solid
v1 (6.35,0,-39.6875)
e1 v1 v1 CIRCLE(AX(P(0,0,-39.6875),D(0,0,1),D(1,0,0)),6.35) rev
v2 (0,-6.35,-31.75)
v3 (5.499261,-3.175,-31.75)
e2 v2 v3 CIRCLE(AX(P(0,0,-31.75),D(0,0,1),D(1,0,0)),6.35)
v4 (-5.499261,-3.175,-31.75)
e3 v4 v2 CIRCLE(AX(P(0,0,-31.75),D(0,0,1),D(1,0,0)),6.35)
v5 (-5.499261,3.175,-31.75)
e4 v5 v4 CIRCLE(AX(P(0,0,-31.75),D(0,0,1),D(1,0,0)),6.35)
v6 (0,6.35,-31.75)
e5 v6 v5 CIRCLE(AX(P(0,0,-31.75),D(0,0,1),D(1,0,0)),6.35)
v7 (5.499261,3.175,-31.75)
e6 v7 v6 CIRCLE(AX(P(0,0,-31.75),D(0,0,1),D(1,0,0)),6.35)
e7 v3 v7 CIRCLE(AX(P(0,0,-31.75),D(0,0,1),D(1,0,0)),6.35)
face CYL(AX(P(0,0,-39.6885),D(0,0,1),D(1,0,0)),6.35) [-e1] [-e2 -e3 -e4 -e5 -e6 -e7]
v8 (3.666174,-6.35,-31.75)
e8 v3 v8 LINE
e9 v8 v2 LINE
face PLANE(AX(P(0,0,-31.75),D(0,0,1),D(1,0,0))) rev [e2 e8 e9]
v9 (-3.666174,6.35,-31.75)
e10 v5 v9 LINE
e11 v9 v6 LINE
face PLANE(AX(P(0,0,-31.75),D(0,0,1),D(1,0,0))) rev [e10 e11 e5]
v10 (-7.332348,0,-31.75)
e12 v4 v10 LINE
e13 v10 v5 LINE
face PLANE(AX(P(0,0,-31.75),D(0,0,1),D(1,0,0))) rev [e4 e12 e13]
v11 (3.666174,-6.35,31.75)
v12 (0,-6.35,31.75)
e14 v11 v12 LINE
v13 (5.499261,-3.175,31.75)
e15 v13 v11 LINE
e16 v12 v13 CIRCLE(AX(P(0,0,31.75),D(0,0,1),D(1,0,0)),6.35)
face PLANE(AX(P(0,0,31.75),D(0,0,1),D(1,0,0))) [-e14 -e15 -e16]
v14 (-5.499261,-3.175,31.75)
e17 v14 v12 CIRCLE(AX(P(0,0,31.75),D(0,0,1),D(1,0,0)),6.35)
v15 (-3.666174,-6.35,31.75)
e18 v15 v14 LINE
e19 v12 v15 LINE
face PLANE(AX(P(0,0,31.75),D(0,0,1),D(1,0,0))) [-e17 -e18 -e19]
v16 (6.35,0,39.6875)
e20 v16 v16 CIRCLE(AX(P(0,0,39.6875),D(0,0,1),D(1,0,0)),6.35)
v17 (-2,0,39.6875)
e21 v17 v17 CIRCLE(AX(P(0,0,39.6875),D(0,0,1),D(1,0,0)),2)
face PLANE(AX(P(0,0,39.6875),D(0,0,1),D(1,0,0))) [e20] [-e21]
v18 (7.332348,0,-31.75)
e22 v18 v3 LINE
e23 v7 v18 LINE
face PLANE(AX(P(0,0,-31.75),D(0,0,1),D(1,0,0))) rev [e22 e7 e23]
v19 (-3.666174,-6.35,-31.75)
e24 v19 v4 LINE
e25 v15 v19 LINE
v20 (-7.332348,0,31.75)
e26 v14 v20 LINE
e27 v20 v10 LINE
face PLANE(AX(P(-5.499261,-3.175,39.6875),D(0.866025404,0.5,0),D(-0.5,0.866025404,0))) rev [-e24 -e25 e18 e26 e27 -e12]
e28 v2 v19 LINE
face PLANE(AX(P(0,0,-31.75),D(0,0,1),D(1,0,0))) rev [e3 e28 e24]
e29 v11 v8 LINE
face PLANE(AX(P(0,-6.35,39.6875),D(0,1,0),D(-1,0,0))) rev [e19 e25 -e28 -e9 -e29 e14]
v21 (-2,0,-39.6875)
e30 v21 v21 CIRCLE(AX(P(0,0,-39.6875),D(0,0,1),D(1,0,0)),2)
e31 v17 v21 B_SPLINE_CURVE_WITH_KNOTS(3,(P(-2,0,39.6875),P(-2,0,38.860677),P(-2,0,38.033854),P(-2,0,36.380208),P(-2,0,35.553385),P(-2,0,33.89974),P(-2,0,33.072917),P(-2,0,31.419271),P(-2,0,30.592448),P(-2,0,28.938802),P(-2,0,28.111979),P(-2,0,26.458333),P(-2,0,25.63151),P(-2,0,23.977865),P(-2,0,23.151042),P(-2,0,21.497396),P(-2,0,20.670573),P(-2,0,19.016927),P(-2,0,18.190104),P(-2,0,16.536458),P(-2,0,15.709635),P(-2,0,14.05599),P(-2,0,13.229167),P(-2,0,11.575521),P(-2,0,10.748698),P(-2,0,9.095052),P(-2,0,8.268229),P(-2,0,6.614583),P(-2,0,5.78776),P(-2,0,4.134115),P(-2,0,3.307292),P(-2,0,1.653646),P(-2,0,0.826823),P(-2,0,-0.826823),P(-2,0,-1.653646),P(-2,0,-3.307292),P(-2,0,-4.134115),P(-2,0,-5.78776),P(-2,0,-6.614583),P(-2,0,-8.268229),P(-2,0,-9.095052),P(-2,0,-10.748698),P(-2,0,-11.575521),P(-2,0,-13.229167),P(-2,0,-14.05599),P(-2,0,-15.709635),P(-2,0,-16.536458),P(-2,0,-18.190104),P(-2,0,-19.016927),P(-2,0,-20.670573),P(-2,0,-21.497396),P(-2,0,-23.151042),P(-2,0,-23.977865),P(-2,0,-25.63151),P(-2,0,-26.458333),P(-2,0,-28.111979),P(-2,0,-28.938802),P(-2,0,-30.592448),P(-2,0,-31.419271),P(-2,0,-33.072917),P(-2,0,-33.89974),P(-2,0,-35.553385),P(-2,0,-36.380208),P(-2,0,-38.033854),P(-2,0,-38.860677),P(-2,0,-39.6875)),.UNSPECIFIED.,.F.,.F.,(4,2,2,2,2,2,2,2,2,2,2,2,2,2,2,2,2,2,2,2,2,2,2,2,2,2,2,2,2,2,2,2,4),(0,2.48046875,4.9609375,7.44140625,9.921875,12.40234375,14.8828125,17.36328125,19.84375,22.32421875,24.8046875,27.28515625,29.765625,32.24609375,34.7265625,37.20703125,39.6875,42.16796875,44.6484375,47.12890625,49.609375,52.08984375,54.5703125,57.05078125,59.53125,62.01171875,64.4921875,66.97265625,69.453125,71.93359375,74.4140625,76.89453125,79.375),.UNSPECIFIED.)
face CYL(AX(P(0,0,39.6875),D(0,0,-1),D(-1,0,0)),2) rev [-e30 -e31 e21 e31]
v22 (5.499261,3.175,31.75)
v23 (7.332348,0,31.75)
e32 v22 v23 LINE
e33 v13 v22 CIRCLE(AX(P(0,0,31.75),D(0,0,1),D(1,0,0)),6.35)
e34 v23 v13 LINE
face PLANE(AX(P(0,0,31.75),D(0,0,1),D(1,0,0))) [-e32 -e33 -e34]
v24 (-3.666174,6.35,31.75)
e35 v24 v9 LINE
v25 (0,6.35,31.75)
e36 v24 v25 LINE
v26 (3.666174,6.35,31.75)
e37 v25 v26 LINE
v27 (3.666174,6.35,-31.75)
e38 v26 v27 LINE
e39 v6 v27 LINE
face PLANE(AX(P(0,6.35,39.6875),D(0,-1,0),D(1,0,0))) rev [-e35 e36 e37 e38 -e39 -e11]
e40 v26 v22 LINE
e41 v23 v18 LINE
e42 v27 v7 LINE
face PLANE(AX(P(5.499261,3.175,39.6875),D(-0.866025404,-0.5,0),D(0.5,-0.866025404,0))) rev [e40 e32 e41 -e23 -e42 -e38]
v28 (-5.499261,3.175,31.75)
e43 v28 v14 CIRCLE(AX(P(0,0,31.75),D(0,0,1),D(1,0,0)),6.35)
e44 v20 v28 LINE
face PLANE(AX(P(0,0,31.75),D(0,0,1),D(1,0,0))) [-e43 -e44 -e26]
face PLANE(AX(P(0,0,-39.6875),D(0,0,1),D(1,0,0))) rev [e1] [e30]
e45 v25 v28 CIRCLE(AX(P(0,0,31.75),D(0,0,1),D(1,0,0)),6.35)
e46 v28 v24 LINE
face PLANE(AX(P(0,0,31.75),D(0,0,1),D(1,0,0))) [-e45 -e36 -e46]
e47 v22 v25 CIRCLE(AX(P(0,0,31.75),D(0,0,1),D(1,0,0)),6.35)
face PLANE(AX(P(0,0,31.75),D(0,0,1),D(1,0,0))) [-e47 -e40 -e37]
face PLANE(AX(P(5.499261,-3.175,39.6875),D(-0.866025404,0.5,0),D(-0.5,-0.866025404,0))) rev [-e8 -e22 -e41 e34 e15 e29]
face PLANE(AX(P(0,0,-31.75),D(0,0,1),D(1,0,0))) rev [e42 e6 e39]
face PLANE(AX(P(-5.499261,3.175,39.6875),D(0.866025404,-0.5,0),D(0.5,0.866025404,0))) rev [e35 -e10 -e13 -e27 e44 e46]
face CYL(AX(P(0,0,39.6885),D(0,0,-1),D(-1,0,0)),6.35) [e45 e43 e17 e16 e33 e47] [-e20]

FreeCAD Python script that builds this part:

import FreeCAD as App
import Part
import Sketcher

V = App.Vector
Q = App.Units.Quantity


def add_polygon(sketch, points):
    """Adds a closed chain of lines whose ends are joined by coincident constraints."""
    first, n = sketch.GeometryCount, len(points)
    for a, b in zip(points, points[1:] + points[:1]):
        sketch.addGeometry(Part.LineSegment(App.Vector(*a, 0), App.Vector(*b, 0)), False)
    for i in range(n):
        sketch.addConstraint(Sketcher.Constraint("Coincident", first + i, 2, first + (i + 1) % n, 1))

doc = App.newDocument("Part")
body = doc.addObject("PartDesign::Body", "Body")

# Sketch on XY plane
sketch1 = body.newObject("Sketcher::SketchObject", "Sketch")
sketch1.AttachmentSupport = (doc.getObject("XY_Plane"), [""])
sketch1.MapMode = "FlatFace"
add_polygon(sketch1, [(7.332348, 0), (3.666174, 6.35), (-3.666174, 6.35), (-7.332348, 0), (-3.666174, -6.35), (3.666174, -6.35)])  # lines 0-5
sketch1.addGeometry(Part.Circle(V(0, 0, 0), V(0, 0, 1), 2), False)  # 6
sketch1.addConstraint(Sketcher.Constraint("Horizontal", 1))
sketch1.addConstraint(Sketcher.Constraint("Horizontal", 4))
sketch1.addConstraint(Sketcher.Constraint("Coincident", 6, 3, -1, 1))
sketch1.addConstraint(Sketcher.Constraint("Symmetric", 0, 2, 3, 2, -1, 1))
sketch1.addConstraint(Sketcher.Constraint("Symmetric", 2, 2, 5, 2, -1, 1))
sketch1.addConstraint(Sketcher.Constraint("PointOnObject", 2, 2, -1))
sketch1.addConstraint(Sketcher.Constraint("Parallel", 2, 5))
sketch1.addConstraint(Sketcher.Constraint("Vertical", 1, 2, 3, 2))
sketch1.addConstraint(Sketcher.Constraint("Angle", 0, Q("120 deg")))
sketch1.addConstraint(Sketcher.Constraint("DistanceY", 3, 2, 1, 2, Q("0.5 in")))
sketch1.addConstraint(Sketcher.Constraint("Diameter", 6, Q("4 mm")))
sketch1.addConstraint(Sketcher.Constraint("DistanceX", 1, 2, 1, 1, Q("7.332348 mm")))
pad1 = body.newObject("PartDesign::Pad", "Pad")
pad1.Profile = sketch1
pad1.Length = Q("3.125 in")
pad1.Midplane = True

# Sketch on XY plane
sketch2 = body.newObject("Sketcher::SketchObject", "Sketch001")
sketch2.AttachmentSupport = (doc.getObject("XY_Plane"), [""])
sketch2.MapMode = "FlatFace"
sketch2.AttachmentOffset = App.Placement(V(0, 0, 1.25 * 25.4), App.Rotation())
sketch2.addGeometry(Part.Circle(V(0, 0, 0), V(0, 0, 1), 8.89), False)
sketch2.addGeometry(Part.Circle(V(0, 0, 0), V(0, 0, 1), 6.35), False)
sketch2.addConstraint(Sketcher.Constraint("Coincident", 0, 3, -1, 1))
sketch2.addConstraint(Sketcher.Constraint("Coincident", 1, 3, -1, 1))
sketch2.addConstraint(Sketcher.Constraint("Diameter", 0, Q("0.7 in")))
sketch2.addConstraint(Sketcher.Constraint("Diameter", 1, Q("0.5 in")))
pocket1 = body.newObject("PartDesign::Pocket", "Pocket")
pocket1.Profile = sketch2
pocket1.Length = Q("0.3125 in")
pocket1.Reversed = True
doc.recompute()

mirrored = body.newObject("PartDesign::Mirrored", "Mirrored")
mirrored.Originals = [pocket1]
mirrored.MirrorPlane = (doc.getObject("XY_Plane"), [""])
body.Tip = mirrored

doc.recompute()
